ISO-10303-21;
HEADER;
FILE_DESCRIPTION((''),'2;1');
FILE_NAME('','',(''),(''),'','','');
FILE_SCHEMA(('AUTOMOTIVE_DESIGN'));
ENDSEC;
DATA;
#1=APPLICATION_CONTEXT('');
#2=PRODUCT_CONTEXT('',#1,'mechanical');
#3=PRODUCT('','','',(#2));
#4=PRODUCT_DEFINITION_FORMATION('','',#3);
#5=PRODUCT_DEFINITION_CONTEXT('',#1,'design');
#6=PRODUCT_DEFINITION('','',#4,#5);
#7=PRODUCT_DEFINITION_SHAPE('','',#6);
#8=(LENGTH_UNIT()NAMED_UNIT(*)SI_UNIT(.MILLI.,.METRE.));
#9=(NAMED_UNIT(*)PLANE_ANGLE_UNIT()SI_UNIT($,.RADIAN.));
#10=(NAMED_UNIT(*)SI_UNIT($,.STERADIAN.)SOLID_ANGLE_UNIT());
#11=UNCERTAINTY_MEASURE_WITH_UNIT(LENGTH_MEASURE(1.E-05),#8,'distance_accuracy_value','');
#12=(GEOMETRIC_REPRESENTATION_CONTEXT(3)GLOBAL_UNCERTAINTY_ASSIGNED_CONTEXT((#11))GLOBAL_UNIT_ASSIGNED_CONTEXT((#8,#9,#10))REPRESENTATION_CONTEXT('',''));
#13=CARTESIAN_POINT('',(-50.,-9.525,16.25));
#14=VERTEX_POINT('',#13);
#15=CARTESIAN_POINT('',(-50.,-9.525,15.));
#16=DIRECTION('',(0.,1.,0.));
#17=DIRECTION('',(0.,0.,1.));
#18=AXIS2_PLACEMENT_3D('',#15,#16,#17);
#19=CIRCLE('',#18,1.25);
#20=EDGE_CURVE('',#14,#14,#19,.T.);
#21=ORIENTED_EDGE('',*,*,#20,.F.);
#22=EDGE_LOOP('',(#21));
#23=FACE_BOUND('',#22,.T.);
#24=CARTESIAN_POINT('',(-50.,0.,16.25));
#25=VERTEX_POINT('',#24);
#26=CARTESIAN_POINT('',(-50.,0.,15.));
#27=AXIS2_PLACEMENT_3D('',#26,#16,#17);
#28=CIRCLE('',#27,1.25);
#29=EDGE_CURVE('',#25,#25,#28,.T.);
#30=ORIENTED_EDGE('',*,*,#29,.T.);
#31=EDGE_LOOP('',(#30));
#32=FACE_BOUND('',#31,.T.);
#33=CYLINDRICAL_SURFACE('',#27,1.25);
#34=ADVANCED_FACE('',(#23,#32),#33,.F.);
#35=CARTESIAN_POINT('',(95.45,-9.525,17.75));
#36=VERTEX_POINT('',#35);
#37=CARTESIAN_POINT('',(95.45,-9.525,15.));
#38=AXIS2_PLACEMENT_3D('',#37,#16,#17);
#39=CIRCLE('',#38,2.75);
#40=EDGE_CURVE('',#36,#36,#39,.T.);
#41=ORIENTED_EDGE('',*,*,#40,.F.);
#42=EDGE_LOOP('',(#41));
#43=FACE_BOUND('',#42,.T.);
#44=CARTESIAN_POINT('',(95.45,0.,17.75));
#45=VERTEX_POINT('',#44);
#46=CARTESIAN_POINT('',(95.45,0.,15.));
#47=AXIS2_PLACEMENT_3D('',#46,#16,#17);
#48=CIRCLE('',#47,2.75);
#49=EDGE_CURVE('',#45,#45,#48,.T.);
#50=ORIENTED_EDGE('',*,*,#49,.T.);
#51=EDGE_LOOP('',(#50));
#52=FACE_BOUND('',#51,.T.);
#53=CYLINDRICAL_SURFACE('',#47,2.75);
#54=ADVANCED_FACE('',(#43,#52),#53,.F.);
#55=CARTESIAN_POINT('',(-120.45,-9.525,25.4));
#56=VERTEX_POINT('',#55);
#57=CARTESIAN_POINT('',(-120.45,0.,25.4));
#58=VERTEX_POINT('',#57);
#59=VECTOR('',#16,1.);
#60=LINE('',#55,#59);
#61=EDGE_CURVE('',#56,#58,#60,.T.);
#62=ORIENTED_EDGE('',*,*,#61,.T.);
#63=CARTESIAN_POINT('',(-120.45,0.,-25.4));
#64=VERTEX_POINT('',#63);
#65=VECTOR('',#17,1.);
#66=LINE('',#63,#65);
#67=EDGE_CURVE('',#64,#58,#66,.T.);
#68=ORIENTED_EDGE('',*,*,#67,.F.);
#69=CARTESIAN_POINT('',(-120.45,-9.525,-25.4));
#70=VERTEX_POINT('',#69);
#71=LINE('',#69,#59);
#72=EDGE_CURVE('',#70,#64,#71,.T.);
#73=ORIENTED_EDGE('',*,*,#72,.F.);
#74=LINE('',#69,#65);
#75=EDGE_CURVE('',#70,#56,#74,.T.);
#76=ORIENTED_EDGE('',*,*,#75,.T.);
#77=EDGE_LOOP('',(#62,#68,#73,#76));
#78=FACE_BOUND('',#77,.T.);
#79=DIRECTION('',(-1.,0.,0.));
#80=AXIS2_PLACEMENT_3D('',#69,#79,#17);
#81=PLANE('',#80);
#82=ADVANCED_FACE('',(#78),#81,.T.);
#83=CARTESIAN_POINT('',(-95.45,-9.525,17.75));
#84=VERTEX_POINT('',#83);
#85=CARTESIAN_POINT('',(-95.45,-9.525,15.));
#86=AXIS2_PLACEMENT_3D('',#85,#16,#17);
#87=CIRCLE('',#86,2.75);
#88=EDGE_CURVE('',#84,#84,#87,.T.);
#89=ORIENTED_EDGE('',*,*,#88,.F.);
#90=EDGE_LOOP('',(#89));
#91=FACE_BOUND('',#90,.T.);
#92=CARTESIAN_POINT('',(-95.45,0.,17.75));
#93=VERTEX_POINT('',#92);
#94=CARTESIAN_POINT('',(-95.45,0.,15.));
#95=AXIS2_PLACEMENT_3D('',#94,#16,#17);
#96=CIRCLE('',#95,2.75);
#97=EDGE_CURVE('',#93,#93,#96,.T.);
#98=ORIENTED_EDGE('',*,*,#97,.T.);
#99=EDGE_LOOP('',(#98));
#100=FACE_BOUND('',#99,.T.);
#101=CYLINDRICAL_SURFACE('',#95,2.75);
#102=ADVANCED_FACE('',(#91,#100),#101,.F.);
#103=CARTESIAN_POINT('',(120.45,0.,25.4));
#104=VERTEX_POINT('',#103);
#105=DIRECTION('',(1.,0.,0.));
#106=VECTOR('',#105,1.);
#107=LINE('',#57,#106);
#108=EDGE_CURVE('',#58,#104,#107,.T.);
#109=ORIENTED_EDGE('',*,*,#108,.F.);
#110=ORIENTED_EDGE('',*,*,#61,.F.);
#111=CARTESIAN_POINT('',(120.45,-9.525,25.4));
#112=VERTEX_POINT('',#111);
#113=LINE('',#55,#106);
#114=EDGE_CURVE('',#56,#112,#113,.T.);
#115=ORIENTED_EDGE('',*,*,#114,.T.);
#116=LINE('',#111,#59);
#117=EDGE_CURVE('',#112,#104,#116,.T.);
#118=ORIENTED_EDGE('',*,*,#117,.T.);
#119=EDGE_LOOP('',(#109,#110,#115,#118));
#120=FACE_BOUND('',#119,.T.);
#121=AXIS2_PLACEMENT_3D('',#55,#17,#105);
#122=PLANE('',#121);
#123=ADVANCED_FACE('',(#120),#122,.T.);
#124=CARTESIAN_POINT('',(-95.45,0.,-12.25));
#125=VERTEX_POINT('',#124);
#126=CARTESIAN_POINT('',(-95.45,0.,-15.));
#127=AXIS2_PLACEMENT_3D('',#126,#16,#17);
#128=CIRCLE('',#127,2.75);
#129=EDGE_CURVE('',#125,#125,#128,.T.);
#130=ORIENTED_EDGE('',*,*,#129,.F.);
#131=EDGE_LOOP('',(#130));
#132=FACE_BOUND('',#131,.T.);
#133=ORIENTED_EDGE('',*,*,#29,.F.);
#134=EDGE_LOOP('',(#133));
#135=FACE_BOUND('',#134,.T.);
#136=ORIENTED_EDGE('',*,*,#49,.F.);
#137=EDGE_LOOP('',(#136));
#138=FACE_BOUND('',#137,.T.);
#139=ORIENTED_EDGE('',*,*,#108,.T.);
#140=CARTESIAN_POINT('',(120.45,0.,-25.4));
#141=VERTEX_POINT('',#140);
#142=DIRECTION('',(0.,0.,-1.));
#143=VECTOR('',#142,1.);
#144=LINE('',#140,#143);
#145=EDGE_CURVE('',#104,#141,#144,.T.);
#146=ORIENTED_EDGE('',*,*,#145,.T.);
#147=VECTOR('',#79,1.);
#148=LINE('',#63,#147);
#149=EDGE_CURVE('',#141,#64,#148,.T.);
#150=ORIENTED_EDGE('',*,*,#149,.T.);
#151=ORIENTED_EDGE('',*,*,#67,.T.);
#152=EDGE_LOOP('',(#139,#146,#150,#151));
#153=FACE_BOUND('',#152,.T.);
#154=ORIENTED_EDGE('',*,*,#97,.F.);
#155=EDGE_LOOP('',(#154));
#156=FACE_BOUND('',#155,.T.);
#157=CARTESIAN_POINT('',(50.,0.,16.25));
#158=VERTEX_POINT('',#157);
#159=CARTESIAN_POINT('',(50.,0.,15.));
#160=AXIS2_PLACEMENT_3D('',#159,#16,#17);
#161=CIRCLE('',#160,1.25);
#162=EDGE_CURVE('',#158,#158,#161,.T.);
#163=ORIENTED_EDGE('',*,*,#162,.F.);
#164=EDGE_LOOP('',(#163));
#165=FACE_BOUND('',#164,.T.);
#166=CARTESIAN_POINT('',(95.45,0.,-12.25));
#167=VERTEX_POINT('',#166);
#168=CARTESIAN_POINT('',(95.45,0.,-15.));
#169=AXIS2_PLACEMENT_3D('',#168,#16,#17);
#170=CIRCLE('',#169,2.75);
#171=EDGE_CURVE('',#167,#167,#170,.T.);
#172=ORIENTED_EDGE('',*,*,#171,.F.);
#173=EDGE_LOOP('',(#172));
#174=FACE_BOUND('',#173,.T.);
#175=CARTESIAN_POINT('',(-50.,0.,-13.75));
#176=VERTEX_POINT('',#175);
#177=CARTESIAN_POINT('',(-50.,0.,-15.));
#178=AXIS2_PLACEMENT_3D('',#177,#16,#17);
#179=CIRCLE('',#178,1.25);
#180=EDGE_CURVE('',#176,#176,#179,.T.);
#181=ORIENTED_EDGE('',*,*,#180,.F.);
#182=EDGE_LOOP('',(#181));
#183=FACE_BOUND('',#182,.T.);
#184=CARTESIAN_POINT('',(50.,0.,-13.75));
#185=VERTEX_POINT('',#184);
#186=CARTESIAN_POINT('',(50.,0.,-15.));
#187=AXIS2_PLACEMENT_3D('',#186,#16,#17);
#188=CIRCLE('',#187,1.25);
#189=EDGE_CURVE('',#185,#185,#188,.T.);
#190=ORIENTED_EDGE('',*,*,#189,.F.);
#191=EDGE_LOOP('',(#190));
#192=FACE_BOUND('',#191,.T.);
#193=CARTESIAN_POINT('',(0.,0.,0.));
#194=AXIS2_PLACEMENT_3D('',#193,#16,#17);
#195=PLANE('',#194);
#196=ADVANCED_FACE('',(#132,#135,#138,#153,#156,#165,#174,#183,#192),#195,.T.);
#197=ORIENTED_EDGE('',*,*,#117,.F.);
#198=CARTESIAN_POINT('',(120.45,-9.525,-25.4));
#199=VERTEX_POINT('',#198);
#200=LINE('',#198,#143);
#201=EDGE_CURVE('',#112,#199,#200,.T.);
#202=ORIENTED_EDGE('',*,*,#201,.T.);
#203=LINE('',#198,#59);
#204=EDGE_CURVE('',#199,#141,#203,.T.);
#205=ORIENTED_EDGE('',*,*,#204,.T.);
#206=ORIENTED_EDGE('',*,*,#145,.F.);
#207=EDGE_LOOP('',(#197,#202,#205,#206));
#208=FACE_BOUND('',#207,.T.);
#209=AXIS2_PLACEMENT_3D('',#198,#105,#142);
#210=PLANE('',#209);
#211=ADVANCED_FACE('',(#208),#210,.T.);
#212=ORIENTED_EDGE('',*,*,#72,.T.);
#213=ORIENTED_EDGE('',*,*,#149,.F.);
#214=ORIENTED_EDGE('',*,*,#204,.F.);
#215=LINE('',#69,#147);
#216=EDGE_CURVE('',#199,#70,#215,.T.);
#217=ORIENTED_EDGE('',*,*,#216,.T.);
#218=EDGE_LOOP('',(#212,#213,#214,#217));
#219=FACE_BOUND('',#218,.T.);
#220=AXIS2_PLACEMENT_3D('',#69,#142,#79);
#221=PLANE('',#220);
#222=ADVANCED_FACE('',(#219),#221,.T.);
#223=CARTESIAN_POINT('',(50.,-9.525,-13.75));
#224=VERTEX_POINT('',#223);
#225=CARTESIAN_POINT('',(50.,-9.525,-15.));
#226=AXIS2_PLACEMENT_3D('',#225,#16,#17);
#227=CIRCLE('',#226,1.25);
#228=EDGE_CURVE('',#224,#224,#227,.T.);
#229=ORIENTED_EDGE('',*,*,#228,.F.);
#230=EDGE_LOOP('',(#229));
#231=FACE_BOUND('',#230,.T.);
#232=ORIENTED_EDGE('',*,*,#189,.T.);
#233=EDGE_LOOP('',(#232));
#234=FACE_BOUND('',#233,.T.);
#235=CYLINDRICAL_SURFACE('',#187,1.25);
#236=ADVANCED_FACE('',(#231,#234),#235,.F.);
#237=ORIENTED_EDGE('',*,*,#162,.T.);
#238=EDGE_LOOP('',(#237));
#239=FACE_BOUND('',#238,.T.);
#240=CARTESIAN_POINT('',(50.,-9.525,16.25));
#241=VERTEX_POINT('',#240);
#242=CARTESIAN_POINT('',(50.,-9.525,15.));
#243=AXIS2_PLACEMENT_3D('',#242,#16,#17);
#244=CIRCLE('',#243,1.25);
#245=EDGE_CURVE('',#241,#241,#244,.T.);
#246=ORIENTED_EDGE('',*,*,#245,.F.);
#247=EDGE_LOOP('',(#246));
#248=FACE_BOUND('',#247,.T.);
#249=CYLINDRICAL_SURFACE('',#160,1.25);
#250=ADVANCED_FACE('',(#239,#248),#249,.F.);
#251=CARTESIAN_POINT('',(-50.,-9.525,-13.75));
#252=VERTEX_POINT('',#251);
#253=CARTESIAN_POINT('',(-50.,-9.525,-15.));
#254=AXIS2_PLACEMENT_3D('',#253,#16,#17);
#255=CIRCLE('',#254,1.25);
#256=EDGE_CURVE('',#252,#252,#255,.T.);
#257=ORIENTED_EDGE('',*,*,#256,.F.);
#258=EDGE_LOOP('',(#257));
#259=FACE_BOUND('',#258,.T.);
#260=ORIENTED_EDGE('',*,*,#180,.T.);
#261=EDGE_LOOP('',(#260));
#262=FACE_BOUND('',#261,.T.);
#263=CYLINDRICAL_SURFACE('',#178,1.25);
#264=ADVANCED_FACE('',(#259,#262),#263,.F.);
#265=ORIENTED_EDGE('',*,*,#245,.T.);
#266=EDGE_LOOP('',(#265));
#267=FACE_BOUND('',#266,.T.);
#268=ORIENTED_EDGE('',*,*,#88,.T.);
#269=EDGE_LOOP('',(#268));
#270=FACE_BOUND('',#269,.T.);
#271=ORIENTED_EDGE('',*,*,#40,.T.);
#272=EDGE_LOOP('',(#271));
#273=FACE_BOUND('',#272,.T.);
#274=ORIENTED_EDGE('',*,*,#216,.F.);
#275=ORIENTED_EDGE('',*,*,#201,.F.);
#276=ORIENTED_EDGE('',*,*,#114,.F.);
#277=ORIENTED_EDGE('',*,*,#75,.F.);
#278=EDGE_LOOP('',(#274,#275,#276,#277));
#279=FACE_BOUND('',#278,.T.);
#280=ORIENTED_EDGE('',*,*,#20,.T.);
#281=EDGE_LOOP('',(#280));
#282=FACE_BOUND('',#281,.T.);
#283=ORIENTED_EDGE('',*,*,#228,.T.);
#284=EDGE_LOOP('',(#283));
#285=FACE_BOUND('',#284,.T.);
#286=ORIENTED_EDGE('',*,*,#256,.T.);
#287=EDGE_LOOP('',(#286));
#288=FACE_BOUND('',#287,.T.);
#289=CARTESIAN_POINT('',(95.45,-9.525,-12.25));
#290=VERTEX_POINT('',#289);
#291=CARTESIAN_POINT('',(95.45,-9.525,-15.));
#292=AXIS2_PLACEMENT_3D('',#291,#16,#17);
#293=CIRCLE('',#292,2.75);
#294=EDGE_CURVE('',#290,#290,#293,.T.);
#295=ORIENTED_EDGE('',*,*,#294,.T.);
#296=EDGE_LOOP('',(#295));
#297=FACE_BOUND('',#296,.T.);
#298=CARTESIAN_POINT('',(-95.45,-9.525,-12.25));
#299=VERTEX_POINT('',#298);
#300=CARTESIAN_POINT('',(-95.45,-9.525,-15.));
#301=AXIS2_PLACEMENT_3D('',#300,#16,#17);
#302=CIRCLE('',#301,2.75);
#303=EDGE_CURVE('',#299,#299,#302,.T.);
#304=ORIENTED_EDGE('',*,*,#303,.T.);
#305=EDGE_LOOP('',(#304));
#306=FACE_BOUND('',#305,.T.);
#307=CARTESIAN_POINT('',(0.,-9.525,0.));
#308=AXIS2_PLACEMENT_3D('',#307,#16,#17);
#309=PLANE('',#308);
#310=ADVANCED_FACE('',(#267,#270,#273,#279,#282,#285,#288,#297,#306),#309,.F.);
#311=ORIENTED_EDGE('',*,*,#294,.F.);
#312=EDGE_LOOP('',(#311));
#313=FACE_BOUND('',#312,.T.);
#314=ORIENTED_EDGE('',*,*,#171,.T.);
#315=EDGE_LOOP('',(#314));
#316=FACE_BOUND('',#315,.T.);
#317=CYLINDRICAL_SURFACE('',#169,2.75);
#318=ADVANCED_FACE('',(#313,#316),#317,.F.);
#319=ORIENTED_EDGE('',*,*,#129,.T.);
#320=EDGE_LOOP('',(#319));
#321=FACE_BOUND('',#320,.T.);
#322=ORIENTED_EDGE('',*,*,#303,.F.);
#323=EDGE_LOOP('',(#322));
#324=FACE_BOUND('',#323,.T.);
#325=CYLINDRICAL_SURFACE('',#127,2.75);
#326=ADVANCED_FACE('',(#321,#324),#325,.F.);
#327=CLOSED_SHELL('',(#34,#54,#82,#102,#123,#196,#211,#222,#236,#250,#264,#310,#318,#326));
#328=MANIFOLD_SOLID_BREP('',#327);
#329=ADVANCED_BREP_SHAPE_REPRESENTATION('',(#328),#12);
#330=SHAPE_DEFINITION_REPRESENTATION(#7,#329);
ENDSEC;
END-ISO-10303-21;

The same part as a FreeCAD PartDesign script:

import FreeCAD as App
import Part
import Sketcher
from FreeCAD import Vector
Q = App.Units.Quantity


def add_polygon(sketch, points):
    """Adds a closed chain of lines whose ends are joined by coincident constraints."""
    first, n = sketch.GeometryCount, len(points)
    for a, b in zip(points, points[1:] + points[:1]):
        sketch.addGeometry(Part.LineSegment(App.Vector(*a, 0), App.Vector(*b, 0)), False)
    for i in range(n):
        sketch.addConstraint(Sketcher.Constraint("Coincident", first + i, 2, first + (i + 1) % n, 1))

doc = App.newDocument("Part")
params = doc.addObject("Spreadsheet::Sheet", "Params")
for row, (alias, value) in enumerate([
    ("sketch1_width", "240.9 mm"),
    ("sketch1_height", "50.8 mm"),
    ("pad1_length", "9.525 mm"),
    ("sketch2_diameter", "2.5 mm"),
    ("hole_diameter", "2.5 mm"),
    ("sketch3_diameter", "5.5 mm"),
    ("hole2_diameter", "5.5 mm"),
], start=1):
    params.set(f"A{row}", alias)
    params.set(f"B{row}", "=" + value)
    params.setAlias(f"B{row}", alias)

body = doc.addObject("PartDesign::Body", "Body")

# Sketch on XZ plane
sketch1 = body.newObject("Sketcher::SketchObject", "Sketch")
sketch1.AttachmentSupport = (doc.getObject("XZ_Plane"), [""])
sketch1.MapMode = "FlatFace"
add_polygon(sketch1, [(-120.45, -25.4), (-120.45, 25.4), (120.45, 25.4), (120.45, -25.4)])  # lines 0-3
sketch1.addConstraint(Sketcher.Constraint("Vertical", 0))
sketch1.addConstraint(Sketcher.Constraint("Horizontal", 1))
sketch1.addConstraint(Sketcher.Constraint("Vertical", 2))
sketch1.addConstraint(Sketcher.Constraint("Horizontal", 3))
sketch1.addConstraint(Sketcher.Constraint("Symmetric", 0, 2, 2, 2, -1, 1))
sketch1.addConstraint(Sketcher.Constraint("DistanceX", 1, 1, 1, 2, Q("240.9 mm")))
sketch1.addConstraint(Sketcher.Constraint("DistanceY", 0, 1, 0, 2, Q("50.8 mm")))
sketch1.setExpression("Constraints[9]", "Params.sketch1_width")
sketch1.setExpression("Constraints[10]", "Params.sketch1_height")
pad1 = body.newObject("PartDesign::Pad", "Pad")
pad1.Profile = sketch1
pad1.setExpression("Length", "Params.pad1_length")

# Sketch on XZ plane
sketch2 = body.newObject("Sketcher::SketchObject", "Sketch001")
sketch2.AttachmentSupport = (doc.getObject("XZ_Plane"), [""])
sketch2.MapMode = "FlatFace"
sketch2.addGeometry(Part.Circle(Vector(-50, -15, 0), Vector(0, 0, 1), 1.25), False)
sketch2.addGeometry(Part.Circle(Vector(-50, 15, 0), Vector(0, 0, 1), 1.25), False)
sketch2.addGeometry(Part.Circle(Vector(50, 15, 0), Vector(0, 0, 1), 1.25), False)
sketch2.addGeometry(Part.Circle(Vector(50, -15, 0), Vector(0, 0, 1), 1.25), False)
sketch2.addConstraint(Sketcher.Constraint("Equal", 0, 1))
sketch2.addConstraint(Sketcher.Constraint("Equal", 1, 2))
sketch2.addConstraint(Sketcher.Constraint("Equal", 2, 3))
sketch2.addConstraint(Sketcher.Constraint("Symmetric", 0, 3, 2, 3, -1, 1))
sketch2.addConstraint(Sketcher.Constraint("Symmetric", 1, 3, 3, 3, -1, 1))
sketch2.addConstraint(Sketcher.Constraint("Symmetric", 1, 3, 2, 3, -2))
sketch2.addConstraint(Sketcher.Constraint("Diameter", 0, Q("2.5 mm")))
sketch2.addConstraint(Sketcher.Constraint("DistanceX", 0, 3, -1, 1, Q("50 mm")))
sketch2.addConstraint(Sketcher.Constraint("DistanceY", 0, 3, -1, 1, Q("15 mm")))
sketch2.setExpression("Constraints[6]", "Params.sketch2_diameter")
doc.recompute()
hole = body.newObject("PartDesign::Hole", "Hole")
hole.Profile = sketch2
hole.ThreadType = "None"
hole.setExpression("Diameter", "Params.hole_diameter")
hole.DepthType = "ThroughAll"
hole.Reversed = True

# Sketch on XZ plane
sketch3 = body.newObject("Sketcher::SketchObject", "Sketch002")
sketch3.AttachmentSupport = (doc.getObject("XZ_Plane"), [""])
sketch3.MapMode = "FlatFace"
sketch3.addGeometry(Part.Circle(Vector(95.45, -15, 0), Vector(0, 0, 1), 2.75), False)
sketch3.addGeometry(Part.Circle(Vector(-95.45, -15, 0), Vector(0, 0, 1), 2.75), False)
sketch3.addGeometry(Part.Circle(Vector(-95.45, 15, 0), Vector(0, 0, 1), 2.75), False)
sketch3.addGeometry(Part.Circle(Vector(95.45, 15, 0), Vector(0, 0, 1), 2.75), False)
sketch3.addConstraint(Sketcher.Constraint("Equal", 0, 1))
sketch3.addConstraint(Sketcher.Constraint("Equal", 1, 2))
sketch3.addConstraint(Sketcher.Constraint("Equal", 2, 3))
sketch3.addConstraint(Sketcher.Constraint("Symmetric", 0, 3, 2, 3, -1, 1))
sketch3.addConstraint(Sketcher.Constraint("Symmetric", 1, 3, 3, 3, -1, 1))
sketch3.addConstraint(Sketcher.Constraint("Symmetric", 0, 3, 1, 3, -2))
sketch3.addConstraint(Sketcher.Constraint("Diameter", 0, Q("5.5 mm")))
sketch3.addConstraint(Sketcher.Constraint("DistanceY", 0, 3, -1, 1, Q("15 mm")))
sketch3.addConstraint(Sketcher.Constraint("DistanceX", 1, 3, 0, 3, Q("190.9 mm")))
sketch3.setExpression("Constraints[6]", "Params.sketch3_diameter")
doc.recompute()
hole2 = body.newObject("PartDesign::Hole", "Hole001")
hole2.Profile = sketch3
hole2.ThreadType = "None"
hole2.setExpression("Diameter", "Params.hole2_diameter")
hole2.DepthType = "ThroughAll"
hole2.Reversed = True

doc.recompute()
